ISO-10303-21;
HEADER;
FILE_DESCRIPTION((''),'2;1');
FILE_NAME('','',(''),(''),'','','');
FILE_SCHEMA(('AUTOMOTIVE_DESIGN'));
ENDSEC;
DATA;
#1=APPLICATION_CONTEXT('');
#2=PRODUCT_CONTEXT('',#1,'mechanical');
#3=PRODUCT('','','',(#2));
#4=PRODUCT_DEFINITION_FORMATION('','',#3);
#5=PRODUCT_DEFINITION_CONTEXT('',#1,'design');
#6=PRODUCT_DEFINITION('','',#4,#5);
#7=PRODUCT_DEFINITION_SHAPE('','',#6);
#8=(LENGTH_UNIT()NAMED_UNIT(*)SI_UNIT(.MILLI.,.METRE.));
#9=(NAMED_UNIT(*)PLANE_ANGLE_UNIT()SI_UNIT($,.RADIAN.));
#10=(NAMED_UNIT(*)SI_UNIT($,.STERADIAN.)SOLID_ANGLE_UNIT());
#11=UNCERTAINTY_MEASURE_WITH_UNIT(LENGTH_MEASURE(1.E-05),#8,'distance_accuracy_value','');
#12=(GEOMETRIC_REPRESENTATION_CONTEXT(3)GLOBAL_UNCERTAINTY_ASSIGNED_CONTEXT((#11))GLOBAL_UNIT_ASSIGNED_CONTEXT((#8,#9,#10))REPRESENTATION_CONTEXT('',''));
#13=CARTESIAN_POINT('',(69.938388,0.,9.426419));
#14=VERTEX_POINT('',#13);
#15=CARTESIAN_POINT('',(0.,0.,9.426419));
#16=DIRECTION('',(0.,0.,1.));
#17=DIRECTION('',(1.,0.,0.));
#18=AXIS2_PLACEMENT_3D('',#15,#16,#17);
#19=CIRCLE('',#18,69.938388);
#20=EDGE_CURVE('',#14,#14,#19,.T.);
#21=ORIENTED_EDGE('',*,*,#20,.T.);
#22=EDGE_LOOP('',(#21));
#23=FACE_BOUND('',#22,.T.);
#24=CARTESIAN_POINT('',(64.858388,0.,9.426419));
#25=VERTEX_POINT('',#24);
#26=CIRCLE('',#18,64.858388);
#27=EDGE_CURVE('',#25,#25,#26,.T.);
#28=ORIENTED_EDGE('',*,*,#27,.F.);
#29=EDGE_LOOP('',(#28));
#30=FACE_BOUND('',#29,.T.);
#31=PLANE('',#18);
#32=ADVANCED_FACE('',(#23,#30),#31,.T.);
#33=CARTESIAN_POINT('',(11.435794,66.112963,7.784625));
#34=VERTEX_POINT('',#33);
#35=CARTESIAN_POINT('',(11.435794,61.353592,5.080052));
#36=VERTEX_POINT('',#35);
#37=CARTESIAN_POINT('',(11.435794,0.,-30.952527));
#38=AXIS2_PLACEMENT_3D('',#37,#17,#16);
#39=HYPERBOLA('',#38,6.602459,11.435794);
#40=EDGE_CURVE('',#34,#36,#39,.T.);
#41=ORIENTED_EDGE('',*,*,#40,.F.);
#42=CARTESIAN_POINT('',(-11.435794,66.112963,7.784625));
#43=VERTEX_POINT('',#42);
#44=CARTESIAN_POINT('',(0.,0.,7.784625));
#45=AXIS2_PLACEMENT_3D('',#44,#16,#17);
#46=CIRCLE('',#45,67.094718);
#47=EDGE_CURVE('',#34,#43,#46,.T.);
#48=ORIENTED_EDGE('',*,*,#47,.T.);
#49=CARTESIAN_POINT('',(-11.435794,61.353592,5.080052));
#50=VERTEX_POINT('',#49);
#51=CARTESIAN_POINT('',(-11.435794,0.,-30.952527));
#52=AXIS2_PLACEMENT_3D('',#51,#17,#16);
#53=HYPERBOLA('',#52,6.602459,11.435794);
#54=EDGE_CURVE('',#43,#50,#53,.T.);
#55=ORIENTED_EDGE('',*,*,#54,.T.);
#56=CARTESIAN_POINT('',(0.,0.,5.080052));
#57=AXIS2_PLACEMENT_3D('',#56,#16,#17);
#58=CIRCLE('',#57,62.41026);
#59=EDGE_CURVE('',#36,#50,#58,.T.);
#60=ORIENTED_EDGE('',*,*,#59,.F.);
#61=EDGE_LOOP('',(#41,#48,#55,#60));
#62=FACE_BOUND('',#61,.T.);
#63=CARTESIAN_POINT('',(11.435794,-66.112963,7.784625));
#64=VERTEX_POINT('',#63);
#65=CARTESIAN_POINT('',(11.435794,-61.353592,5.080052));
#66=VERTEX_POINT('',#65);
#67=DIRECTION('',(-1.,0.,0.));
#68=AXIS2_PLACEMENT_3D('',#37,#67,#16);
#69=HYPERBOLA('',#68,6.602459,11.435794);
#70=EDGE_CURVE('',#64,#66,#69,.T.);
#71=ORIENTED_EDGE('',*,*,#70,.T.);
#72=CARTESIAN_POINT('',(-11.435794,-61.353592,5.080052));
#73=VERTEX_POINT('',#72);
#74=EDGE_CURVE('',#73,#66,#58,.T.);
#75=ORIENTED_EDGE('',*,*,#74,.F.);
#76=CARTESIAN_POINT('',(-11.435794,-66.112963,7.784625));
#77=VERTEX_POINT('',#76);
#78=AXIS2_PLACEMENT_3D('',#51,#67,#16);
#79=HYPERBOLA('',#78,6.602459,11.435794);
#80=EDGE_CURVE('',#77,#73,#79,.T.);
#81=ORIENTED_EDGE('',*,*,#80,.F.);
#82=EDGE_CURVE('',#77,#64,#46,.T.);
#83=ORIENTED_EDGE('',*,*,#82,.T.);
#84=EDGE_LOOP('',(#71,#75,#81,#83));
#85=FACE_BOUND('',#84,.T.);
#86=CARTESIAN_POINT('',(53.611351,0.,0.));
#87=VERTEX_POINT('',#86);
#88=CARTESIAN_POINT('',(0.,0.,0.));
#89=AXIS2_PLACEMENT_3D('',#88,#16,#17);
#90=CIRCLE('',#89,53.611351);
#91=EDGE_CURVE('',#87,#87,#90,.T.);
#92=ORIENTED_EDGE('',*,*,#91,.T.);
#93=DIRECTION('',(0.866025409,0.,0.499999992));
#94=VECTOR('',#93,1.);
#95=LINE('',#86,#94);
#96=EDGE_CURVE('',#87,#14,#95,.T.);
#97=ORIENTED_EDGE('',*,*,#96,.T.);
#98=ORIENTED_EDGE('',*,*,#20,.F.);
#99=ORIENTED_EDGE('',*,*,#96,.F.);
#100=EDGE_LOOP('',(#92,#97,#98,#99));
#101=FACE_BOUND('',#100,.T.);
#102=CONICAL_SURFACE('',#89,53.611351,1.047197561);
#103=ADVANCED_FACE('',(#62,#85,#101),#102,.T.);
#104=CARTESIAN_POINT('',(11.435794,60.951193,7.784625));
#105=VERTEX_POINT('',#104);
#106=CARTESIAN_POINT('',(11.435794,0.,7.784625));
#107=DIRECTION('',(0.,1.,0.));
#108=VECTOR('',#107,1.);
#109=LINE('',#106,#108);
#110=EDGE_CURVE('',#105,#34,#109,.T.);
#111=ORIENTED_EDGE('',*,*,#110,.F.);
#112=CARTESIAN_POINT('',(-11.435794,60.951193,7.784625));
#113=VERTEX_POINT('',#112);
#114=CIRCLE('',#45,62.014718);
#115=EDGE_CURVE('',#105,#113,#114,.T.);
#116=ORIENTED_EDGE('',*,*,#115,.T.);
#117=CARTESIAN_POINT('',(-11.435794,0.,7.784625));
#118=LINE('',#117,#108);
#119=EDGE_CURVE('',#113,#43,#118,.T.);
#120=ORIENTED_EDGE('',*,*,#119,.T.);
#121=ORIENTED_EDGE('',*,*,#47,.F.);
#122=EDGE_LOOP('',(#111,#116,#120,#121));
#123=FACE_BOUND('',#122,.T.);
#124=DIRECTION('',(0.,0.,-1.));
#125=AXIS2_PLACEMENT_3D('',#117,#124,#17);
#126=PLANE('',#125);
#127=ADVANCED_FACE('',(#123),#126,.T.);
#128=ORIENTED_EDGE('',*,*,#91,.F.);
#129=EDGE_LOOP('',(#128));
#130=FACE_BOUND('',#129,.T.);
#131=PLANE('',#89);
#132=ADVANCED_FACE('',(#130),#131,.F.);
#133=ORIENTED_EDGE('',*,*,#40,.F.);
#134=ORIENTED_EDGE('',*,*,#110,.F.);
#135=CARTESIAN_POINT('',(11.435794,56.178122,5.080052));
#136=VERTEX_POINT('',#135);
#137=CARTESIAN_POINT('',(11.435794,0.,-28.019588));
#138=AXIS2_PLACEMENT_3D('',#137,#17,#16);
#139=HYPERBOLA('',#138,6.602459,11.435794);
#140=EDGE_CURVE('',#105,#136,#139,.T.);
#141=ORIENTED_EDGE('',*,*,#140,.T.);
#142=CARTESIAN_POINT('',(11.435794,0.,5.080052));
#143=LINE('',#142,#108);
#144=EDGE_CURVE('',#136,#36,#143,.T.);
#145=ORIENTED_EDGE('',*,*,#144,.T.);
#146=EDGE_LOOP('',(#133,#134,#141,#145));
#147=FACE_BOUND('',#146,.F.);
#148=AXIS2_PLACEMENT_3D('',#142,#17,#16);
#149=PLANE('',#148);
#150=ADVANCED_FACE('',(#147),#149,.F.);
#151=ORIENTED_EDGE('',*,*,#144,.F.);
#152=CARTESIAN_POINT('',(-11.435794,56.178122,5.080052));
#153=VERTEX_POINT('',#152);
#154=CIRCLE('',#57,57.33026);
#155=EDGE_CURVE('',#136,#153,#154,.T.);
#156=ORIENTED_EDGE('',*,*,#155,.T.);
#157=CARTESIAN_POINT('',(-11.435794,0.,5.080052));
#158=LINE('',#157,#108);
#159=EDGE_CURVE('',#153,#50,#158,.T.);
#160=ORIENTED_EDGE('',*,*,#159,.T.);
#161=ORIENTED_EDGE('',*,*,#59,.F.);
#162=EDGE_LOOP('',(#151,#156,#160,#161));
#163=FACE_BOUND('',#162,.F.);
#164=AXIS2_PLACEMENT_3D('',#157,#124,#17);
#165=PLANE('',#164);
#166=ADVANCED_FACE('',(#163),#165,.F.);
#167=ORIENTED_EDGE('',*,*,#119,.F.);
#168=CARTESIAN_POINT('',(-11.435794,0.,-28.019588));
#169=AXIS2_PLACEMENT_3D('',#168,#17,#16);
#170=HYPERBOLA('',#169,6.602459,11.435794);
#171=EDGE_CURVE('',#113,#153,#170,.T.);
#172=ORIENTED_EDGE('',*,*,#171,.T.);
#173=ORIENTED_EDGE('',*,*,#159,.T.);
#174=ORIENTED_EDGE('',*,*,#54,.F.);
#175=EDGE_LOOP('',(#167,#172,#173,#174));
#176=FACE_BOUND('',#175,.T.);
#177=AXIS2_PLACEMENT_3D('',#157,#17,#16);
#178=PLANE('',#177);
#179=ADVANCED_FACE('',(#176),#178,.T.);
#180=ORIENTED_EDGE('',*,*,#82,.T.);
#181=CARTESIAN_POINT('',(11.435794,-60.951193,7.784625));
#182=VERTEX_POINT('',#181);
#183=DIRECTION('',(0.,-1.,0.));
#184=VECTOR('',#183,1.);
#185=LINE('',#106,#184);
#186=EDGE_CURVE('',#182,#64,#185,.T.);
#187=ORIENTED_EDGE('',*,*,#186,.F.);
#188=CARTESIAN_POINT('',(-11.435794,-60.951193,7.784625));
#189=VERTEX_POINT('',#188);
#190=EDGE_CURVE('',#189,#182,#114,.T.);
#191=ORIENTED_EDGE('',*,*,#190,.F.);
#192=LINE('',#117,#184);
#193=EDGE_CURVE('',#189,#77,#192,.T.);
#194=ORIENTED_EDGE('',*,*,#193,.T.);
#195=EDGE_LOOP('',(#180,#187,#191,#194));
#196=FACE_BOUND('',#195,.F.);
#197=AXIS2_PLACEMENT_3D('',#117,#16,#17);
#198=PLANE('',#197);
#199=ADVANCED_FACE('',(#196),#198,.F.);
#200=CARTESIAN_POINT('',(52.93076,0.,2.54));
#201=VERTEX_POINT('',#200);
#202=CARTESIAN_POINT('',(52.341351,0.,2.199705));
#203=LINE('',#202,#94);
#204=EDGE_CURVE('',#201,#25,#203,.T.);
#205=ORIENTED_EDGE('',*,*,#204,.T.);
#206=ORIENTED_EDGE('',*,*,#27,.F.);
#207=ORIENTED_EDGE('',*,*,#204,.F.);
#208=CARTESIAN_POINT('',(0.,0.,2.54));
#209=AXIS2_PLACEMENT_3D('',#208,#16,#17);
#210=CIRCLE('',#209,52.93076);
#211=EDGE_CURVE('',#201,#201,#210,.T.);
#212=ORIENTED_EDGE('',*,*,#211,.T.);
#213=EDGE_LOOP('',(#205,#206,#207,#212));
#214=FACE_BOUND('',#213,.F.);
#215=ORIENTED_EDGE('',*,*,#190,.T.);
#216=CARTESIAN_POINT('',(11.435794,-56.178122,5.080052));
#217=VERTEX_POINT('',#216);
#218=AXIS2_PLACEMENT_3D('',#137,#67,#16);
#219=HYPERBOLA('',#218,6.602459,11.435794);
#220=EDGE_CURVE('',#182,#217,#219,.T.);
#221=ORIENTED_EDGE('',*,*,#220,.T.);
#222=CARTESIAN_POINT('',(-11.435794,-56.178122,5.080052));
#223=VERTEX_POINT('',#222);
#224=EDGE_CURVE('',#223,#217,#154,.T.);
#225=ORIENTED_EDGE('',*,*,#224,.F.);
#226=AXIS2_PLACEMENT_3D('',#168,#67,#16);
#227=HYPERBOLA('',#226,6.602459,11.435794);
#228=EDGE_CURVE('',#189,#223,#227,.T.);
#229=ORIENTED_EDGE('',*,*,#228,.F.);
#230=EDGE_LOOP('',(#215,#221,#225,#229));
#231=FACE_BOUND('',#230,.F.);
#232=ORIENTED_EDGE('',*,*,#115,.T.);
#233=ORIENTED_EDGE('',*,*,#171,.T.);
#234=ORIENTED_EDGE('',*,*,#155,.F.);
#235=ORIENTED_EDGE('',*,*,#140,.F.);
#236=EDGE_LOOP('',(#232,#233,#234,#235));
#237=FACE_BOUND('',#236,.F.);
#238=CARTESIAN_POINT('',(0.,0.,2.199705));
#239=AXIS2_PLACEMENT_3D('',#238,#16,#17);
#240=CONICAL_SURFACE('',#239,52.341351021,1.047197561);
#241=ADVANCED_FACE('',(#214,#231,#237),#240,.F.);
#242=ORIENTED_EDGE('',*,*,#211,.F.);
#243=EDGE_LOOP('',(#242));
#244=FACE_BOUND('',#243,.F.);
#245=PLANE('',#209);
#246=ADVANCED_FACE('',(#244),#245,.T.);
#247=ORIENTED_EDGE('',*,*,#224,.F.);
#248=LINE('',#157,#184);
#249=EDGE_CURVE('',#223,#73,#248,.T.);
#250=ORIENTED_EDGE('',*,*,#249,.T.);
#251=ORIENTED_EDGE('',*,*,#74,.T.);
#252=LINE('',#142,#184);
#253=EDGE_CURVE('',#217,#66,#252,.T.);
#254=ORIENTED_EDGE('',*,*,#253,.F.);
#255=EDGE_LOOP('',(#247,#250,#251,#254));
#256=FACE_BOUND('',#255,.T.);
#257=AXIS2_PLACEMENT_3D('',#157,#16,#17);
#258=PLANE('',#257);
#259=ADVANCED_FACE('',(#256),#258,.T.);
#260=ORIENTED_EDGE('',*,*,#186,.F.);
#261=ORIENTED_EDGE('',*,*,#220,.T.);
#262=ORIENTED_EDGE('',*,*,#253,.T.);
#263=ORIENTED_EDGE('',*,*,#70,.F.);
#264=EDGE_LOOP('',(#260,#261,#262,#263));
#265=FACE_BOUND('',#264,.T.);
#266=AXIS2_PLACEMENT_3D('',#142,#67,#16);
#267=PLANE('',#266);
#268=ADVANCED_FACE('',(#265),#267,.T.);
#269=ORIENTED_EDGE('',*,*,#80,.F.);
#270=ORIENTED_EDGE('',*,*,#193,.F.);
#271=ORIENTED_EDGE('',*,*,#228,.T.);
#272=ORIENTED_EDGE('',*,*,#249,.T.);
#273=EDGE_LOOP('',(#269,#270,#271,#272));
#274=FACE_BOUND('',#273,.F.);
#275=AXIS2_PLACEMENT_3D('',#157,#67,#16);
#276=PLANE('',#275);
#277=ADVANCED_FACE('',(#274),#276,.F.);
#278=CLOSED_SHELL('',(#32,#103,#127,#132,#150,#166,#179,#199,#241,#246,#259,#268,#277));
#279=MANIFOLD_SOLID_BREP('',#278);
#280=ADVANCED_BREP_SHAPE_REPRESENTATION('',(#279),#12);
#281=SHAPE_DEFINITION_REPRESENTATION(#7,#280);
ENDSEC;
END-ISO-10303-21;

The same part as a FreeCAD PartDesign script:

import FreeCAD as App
import Part
import Sketcher
Q = App.Units.Quantity


def faces_at(feature, points):
    """Names of the faces that lie closest to the given points."""
    faces = feature.Shape.Faces
    near = lambda p: min(range(len(faces)), key=lambda i: faces[i].distToShape(Part.Vertex(*p))[0])
    return sorted({f"Face{near(p) + 1}" for p in points})

doc = App.newDocument("Part")
body = doc.addObject("PartDesign::Body", "Body")

sketch1 = doc.addObject("Sketcher::SketchObject", "Sketch")
body.addObject(sketch1)
sketch1.AttachmentSupport = (doc.XZ_Plane, [""])
sketch1.MapMode = "FlatFace"
sketch1.addGeometry([
    Part.LineSegment(App.Vector(0, 9, 0), App.Vector(0, 0, 0)),
    Part.LineSegment(App.Vector(0, 0, 0), App.Vector(54, 0, 0)),
    Part.LineSegment(App.Vector(54, 0, 0), App.Vector(70, 9, 0)),
    Part.LineSegment(App.Vector(70, 9, 0), App.Vector(0, 9, 0)),
], False)
sketch1.addConstraint([
    Sketcher.Constraint("Coincident", 0, 2, 1, 1),
    Sketcher.Constraint("Coincident", 1, 2, 2, 1),
    Sketcher.Constraint("Coincident", 2, 2, 3, 1),
    Sketcher.Constraint("Coincident", 3, 2, 0, 1),
    Sketcher.Constraint("Vertical", 0),
    Sketcher.Constraint("Horizontal", 1),
    Sketcher.Constraint("Horizontal", 3),
    Sketcher.Constraint("Coincident", 0, 2, -1, 1),
    Sketcher.Constraint("Angle", 2, Q("29.999999 deg")),
    Sketcher.Constraint("DistanceX", 1, 1, 1, 2, 53.611351),
    Sketcher.Constraint("DistanceX", 3, 2, 3, 1, 69.938388),
])
revolution = doc.addObject("PartDesign::Revolution", "Revolution")
body.addObject(revolution)
revolution.Profile = sketch1
revolution.ReferenceAxis = (sketch1, ["V_Axis"])
revolution.Angle = 360
doc.recompute()

thickness = doc.addObject("PartDesign::Thickness", "Thickness")
body.addObject(thickness)
thickness.Base = (revolution, faces_at(revolution, [(0, 0, 9.426)]))
thickness.Value = Q("0.1 in")
thickness.Reversed = True
thickness.Join = "Arc"

sketch2 = doc.addObject("Sketcher::SketchObject", "Sketch001")
body.addObject(sketch2)
sketch2.AttachmentSupport = (doc.XZ_Plane, [""])
sketch2.MapMode = "FlatFace"
sketch2.addGeometry([
    Part.LineSegment(App.Vector(-11.4, 7.8, 0), App.Vector(-11.4, 5.1, 0)),
    Part.LineSegment(App.Vector(-11.4, 5.1, 0), App.Vector(11.4, 5.1, 0)),
    Part.LineSegment(App.Vector(11.4, 5.1, 0), App.Vector(11.4, 7.8, 0)),
    Part.LineSegment(App.Vector(11.4, 7.8, 0), App.Vector(-11.4, 7.8, 0)),
], False)
sketch2.addConstraint([
    Sketcher.Constraint("Coincident", 0, 2, 1, 1),
    Sketcher.Constraint("Coincident", 1, 2, 2, 1),
    Sketcher.Constraint("Coincident", 2, 2, 3, 1),
    Sketcher.Constraint("Coincident", 3, 2, 0, 1),
    Sketcher.Constraint("Vertical", 0),
    Sketcher.Constraint("Horizontal", 1),
    Sketcher.Constraint("Vertical", 2),
    Sketcher.Constraint("Horizontal", 3),
    Sketcher.Constraint("DistanceX", 1, 1, 1, 2, 22.871588),
    Sketcher.Constraint("DistanceY", 0, 2, 0, 1, 2.704573),
    Sketcher.Constraint("DistanceX", 0, 2, -1, 1, 11.435794),
    Sketcher.Constraint("DistanceY", -1, 1, 0, 2, 5.080052),
])
pocket1 = doc.addObject("PartDesign::Pocket", "Pocket")
body.addObject(pocket1)
pocket1.Profile = sketch2
pocket1.Type = "ThroughAll"

sketch3 = doc.addObject("Sketcher::SketchObject", "Sketch002")
body.addObject(sketch3)
sketch3.AttachmentSupport = (doc.XZ_Plane, [""])
sketch3.MapMode = "FlatFace"
sketch3.addGeometry([
    Part.LineSegment(App.Vector(-11.4, 7.8, 0), App.Vector(-11.4, 5.1, 0)),
    Part.LineSegment(App.Vector(-11.4, 5.1, 0), App.Vector(11.4, 5.1, 0)),
    Part.LineSegment(App.Vector(11.4, 5.1, 0), App.Vector(11.4, 7.8, 0)),
    Part.LineSegment(App.Vector(11.4, 7.8, 0), App.Vector(-11.4, 7.8, 0)),
], False)
sketch3.addConstraint([
    Sketcher.Constraint("Coincident", 0, 2, 1, 1),
    Sketcher.Constraint("Coincident", 1, 2, 2, 1),
    Sketcher.Constraint("Coincident", 2, 2, 3, 1),
    Sketcher.Constraint("Coincident", 3, 2, 0, 1),
    Sketcher.Constraint("Vertical", 0),
    Sketcher.Constraint("Horizontal", 1),
    Sketcher.Constraint("Vertical", 2),
    Sketcher.Constraint("Horizontal", 3),
    Sketcher.Constraint("DistanceX", 1, 1, 1, 2, 22.871588),
    Sketcher.Constraint("DistanceY", 0, 2, 0, 1, 2.704573),
    Sketcher.Constraint("DistanceX", 0, 2, -1, 1, 11.435794),
    Sketcher.Constraint("DistanceY", -1, 1, 0, 2, 5.080052),
])
pocket2 = doc.addObject("PartDesign::Pocket", "Pocket001")
body.addObject(pocket2)
pocket2.Profile = sketch3
pocket2.Type = "ThroughAll"
pocket2.Reversed = True

doc.recompute()
